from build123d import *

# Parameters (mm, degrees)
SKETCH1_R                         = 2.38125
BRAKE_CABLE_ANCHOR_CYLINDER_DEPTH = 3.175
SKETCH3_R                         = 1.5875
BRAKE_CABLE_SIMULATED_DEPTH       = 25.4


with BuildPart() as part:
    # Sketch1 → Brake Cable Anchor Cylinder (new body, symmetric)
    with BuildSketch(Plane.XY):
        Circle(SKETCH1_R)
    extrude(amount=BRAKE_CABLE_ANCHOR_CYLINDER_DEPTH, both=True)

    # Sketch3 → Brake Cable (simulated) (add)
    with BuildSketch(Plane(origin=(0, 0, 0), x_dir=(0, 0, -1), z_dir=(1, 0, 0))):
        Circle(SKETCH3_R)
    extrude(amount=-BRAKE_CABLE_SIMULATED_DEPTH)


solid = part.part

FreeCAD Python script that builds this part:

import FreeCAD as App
import Part
import Sketcher
Q = App.Units.Quantity

doc = App.newDocument("Part")
body = doc.addObject("PartDesign::Body", "Body")

sketch1 = body.newObject("Sketcher::SketchObject", "Sketch")
sketch1.AttachmentSupport = (doc.getObject("XY_Plane"), [""])
sketch1.MapMode = "FlatFace"
sketch1.addGeometry(Part.Circle(App.Vector(0, 0, 0), App.Vector(0, 0, 1), 2.4), False)
sketch1.addConstraint([
    Sketcher.Constraint("Coincident", 0, 3, -1, 1),
    Sketcher.Constraint("Diameter", 0, Q("0.1875 in")),
])
pad1 = body.newObject("PartDesign::Pad", "Pad")
pad1.Profile = sketch1
pad1.Length = Q("0.25 in")
pad1.Midplane = True

sketch2 = body.newObject("Sketcher::SketchObject", "Sketch001")
sketch2.AttachmentSupport = (doc.getObject("YZ_Plane"), [""])
sketch2.MapMode = "FlatFace"
sketch2.addGeometry(Part.Circle(App.Vector(0, 0, 0), App.Vector(0, 0, 1), 1.6), False)
sketch2.addConstraint([
    Sketcher.Constraint("Coincident", 0, 3, -1, 1),
    Sketcher.Constraint("Diameter", 0, Q("0.125 in")),
])
pad2 = body.newObject("PartDesign::Pad", "Pad001")
pad2.Profile = sketch2
pad2.Length = Q("1 in")
pad2.Reversed = True

doc.recompute()
